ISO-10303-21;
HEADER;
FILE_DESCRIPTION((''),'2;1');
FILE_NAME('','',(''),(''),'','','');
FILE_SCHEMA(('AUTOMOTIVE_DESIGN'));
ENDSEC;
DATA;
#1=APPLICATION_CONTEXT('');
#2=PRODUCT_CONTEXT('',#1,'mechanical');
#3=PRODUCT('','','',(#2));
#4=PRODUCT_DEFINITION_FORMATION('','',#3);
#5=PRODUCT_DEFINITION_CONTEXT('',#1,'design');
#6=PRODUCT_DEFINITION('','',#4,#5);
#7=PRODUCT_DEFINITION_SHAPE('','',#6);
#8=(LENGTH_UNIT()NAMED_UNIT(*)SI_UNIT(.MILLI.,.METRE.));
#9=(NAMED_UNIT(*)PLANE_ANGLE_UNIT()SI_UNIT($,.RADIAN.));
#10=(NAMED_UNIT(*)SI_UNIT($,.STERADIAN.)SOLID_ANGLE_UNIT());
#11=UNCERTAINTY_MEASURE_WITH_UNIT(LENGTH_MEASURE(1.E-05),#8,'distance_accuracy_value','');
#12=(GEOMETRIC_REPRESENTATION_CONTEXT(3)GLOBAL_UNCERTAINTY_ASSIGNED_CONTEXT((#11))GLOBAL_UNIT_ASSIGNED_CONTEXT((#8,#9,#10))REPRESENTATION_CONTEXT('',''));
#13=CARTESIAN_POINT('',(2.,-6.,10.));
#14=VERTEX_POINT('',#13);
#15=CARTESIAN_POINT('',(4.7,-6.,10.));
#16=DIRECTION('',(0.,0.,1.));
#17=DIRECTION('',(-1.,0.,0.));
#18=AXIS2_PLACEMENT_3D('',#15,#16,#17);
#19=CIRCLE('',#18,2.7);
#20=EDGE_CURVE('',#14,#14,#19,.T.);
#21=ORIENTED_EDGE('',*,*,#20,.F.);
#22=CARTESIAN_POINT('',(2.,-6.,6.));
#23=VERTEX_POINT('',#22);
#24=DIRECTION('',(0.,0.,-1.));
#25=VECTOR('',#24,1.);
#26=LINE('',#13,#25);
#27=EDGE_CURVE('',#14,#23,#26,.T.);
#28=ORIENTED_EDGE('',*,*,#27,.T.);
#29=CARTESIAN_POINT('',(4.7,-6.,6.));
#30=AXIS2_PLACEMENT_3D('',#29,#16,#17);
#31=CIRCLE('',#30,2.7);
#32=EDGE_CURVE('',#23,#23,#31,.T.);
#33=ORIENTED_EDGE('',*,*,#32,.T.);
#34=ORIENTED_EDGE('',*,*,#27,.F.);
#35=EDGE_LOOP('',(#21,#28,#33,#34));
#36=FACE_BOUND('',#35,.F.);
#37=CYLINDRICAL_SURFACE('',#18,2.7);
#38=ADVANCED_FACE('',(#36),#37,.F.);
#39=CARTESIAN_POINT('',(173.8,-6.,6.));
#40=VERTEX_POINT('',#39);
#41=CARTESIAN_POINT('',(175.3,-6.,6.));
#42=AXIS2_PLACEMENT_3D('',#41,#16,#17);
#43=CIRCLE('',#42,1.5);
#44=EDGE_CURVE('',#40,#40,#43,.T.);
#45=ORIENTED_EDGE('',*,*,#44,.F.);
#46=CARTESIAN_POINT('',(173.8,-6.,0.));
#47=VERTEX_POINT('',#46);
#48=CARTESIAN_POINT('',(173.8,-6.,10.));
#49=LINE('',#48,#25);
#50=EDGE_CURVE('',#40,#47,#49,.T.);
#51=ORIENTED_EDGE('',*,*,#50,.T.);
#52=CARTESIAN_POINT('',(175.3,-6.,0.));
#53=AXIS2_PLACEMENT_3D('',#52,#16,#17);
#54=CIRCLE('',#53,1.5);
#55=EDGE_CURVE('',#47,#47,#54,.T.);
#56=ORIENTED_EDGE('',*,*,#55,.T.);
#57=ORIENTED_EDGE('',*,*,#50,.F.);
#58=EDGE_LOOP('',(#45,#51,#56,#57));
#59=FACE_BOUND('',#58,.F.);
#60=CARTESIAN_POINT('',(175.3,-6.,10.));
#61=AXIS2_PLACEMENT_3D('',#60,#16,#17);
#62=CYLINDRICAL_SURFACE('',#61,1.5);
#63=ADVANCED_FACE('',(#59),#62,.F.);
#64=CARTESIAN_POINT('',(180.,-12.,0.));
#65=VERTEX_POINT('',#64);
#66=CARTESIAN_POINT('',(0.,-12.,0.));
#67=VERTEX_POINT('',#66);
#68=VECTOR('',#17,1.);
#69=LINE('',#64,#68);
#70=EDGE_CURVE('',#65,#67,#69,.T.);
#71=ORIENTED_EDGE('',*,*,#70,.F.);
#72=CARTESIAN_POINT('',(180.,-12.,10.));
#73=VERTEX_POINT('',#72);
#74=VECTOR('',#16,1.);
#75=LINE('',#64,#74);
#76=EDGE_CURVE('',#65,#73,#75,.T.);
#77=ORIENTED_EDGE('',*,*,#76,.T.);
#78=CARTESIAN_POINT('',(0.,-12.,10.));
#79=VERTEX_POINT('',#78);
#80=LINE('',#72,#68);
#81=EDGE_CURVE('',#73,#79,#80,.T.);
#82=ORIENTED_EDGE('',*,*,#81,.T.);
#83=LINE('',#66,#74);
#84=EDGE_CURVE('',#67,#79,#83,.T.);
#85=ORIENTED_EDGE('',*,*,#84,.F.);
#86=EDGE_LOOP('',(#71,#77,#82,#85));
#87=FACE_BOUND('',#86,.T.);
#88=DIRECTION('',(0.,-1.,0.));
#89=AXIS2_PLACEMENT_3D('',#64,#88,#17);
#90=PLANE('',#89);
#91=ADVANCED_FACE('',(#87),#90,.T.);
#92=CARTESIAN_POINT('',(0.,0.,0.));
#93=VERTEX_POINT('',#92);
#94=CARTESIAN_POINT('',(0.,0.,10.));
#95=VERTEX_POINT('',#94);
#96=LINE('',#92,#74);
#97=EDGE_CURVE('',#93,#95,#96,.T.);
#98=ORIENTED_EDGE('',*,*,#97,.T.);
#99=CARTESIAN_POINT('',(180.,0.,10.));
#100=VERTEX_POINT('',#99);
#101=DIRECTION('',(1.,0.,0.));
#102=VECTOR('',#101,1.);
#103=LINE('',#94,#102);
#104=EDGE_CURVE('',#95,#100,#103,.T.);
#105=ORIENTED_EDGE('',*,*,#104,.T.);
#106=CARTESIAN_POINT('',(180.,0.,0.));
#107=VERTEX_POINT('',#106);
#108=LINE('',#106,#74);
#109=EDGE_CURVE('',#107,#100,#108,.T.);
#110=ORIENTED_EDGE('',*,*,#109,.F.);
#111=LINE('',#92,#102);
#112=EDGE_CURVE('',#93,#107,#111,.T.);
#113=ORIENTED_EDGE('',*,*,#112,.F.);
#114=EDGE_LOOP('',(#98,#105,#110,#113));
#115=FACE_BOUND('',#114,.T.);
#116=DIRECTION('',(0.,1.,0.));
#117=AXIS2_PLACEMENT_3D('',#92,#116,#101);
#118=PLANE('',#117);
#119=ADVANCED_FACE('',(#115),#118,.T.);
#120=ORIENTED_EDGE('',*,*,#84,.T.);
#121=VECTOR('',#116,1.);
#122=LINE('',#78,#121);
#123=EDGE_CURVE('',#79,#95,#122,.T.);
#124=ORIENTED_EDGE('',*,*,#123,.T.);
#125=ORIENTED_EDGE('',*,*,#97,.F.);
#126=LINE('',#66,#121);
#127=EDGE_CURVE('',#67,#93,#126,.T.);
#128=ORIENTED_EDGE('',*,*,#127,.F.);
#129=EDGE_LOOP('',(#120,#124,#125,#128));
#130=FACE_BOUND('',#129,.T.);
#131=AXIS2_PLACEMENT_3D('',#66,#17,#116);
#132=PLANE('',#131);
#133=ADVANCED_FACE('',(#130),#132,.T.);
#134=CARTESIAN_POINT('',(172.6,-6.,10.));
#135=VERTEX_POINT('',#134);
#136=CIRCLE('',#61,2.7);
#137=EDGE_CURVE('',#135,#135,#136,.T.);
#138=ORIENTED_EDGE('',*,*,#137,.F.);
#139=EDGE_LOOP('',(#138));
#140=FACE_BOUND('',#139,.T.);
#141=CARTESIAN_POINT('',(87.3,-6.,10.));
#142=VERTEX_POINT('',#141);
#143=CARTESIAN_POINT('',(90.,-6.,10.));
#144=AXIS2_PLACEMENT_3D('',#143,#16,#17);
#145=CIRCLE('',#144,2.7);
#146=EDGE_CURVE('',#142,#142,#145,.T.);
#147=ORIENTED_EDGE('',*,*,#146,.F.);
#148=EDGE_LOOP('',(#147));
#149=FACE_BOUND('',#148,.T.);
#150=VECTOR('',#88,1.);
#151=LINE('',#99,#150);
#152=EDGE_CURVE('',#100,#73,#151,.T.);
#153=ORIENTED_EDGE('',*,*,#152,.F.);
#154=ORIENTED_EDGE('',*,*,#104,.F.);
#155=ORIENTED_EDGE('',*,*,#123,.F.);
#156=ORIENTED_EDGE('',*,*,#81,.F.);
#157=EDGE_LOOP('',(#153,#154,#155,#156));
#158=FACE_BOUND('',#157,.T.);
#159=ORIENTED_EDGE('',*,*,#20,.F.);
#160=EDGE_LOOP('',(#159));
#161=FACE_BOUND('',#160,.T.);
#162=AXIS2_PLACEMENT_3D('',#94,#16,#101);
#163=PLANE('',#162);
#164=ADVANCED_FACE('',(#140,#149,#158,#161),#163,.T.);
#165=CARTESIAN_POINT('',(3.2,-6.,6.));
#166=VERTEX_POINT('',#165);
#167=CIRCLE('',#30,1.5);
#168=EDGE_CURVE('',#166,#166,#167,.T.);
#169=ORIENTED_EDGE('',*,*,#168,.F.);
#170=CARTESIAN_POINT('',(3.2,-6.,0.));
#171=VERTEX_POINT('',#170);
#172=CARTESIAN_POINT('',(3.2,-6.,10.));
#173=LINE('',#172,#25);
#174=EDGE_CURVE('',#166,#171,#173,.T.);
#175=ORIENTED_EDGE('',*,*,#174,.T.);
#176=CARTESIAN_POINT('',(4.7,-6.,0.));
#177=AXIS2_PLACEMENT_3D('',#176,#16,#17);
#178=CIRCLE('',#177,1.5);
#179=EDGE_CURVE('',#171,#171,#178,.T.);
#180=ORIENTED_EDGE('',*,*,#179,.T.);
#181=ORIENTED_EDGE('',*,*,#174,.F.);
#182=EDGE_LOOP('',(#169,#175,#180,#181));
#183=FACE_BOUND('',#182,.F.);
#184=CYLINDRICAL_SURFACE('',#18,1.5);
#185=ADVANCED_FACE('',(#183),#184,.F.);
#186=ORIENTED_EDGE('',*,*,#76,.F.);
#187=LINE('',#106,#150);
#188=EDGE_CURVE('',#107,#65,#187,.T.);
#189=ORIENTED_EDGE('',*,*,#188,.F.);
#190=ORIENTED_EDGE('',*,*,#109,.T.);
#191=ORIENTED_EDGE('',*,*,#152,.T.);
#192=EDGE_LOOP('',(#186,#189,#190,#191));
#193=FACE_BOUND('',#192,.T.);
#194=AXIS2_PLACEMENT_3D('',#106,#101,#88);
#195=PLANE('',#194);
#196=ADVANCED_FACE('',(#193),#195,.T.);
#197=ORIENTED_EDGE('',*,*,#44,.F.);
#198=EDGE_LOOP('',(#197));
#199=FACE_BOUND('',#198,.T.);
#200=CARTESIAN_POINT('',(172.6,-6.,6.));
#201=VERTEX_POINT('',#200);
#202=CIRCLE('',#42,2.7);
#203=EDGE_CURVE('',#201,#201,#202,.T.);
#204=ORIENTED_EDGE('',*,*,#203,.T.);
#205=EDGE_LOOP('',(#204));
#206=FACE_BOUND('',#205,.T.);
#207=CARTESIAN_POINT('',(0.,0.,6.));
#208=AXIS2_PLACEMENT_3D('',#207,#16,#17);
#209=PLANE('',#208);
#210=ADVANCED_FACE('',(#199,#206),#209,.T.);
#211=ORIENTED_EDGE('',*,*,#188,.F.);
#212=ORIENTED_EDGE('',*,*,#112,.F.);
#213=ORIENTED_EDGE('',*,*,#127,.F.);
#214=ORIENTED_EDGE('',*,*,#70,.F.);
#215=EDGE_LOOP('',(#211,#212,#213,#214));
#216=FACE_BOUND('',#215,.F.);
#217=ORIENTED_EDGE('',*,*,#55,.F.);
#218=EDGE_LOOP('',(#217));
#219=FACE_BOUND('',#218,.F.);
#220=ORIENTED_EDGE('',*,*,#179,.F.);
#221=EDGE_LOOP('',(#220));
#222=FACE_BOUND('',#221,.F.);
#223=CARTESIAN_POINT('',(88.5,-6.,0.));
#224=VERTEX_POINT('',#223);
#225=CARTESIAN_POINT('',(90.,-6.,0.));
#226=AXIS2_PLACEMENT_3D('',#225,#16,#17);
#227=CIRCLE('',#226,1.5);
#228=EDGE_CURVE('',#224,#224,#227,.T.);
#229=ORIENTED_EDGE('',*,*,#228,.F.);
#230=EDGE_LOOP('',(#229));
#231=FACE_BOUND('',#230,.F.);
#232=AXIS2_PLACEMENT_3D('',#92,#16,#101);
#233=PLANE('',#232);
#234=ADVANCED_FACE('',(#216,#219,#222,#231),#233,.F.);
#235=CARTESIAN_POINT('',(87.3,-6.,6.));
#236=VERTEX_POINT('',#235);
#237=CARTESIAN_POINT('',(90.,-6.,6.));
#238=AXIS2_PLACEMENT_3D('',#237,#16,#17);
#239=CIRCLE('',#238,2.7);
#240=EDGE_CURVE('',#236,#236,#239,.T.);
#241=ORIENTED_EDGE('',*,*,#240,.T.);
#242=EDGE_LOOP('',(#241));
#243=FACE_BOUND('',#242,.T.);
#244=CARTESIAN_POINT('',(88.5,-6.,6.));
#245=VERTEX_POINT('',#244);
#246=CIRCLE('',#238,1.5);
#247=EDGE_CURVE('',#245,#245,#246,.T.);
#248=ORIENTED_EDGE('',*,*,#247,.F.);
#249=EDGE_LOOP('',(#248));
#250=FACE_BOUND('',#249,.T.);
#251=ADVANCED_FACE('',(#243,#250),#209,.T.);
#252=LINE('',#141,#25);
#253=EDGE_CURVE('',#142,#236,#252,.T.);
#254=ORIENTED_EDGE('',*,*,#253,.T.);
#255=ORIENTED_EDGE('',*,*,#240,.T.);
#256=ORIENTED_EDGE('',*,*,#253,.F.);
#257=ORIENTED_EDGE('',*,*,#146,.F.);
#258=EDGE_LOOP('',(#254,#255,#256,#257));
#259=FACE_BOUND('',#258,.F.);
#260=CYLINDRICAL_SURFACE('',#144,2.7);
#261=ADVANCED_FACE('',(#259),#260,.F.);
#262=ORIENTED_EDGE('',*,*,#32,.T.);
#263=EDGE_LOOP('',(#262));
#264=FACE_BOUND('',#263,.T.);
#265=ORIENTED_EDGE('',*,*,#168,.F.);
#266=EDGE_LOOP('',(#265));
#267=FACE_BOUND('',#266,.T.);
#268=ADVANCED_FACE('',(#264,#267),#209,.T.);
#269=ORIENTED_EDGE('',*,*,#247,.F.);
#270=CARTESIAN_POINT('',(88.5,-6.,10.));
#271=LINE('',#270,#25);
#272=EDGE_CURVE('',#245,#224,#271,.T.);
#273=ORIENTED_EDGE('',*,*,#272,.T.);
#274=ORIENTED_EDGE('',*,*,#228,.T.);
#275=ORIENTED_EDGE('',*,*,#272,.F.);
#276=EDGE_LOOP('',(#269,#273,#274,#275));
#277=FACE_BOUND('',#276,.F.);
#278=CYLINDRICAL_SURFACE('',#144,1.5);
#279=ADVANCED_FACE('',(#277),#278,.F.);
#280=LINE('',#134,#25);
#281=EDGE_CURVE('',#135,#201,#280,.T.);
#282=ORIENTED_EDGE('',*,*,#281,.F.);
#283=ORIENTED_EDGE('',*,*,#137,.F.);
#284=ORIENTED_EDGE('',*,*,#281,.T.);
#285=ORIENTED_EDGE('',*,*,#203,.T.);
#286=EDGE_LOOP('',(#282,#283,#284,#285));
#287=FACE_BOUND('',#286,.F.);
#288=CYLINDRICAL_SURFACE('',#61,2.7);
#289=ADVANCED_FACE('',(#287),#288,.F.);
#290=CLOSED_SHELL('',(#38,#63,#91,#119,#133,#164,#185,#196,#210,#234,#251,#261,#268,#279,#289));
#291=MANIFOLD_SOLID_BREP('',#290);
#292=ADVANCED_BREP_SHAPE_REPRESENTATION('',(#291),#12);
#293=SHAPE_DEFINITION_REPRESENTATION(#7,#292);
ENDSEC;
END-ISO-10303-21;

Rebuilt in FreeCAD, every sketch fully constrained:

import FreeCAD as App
import Part
import Sketcher
from FreeCAD import Vector

doc = App.newDocument("Part")
body = doc.addObject("PartDesign::Body", "Body")

# Sketch on XY plane
sketch1 = body.newObject("Sketcher::SketchObject", "Sketch")
sketch1.AttachmentSupport = (doc.getObject("XY_Plane"), [""])
sketch1.MapMode = "FlatFace"
sketch1.addGeometry(Part.LineSegment(Vector(180, 0, 0), Vector(0, 0, 0)), False)
sketch1.addGeometry(Part.LineSegment(Vector(0, 0, 0), Vector(0, -12, 0)), False)
sketch1.addGeometry(Part.LineSegment(Vector(0, -12, 0), Vector(180, -12, 0)), False)
sketch1.addGeometry(Part.LineSegment(Vector(180, -12, 0), Vector(180, 0, 0)), False)
sketch1.addConstraint(Sketcher.Constraint("Coincident", 0, 2, 1, 1))
sketch1.addConstraint(Sketcher.Constraint("Coincident", 1, 2, 2, 1))
sketch1.addConstraint(Sketcher.Constraint("Coincident", 2, 2, 3, 1))
sketch1.addConstraint(Sketcher.Constraint("Coincident", 3, 2, 0, 1))
sketch1.addConstraint(Sketcher.Constraint("Horizontal", 0))
sketch1.addConstraint(Sketcher.Constraint("Vertical", 1))
sketch1.addConstraint(Sketcher.Constraint("Horizontal", 2))
sketch1.addConstraint(Sketcher.Constraint("Vertical", 3))
sketch1.addConstraint(Sketcher.Constraint("Coincident", 0, 2, -1, 1))
sketch1.addConstraint(Sketcher.Constraint("DistanceX", 0, 2, 0, 1, 180.0))
sketch1.addConstraint(Sketcher.Constraint("DistanceY", 1, 2, 1, 1, 12.0))
pad1 = body.newObject("PartDesign::Pad", "Pad")
pad1.Profile = sketch1
pad1.Length = 10

# Sketch on XY plane
sketch2 = body.newObject("Sketcher::SketchObject", "Sketch001")
sketch2.AttachmentSupport = (doc.getObject("XY_Plane"), [""])
sketch2.MapMode = "FlatFace"
sketch2.AttachmentOffset = App.Placement(Vector(0, 0, 10), App.Rotation())
sketch2.addGeometry(Part.Circle(Vector(175.3, -6, 0), Vector(0, 0, 1), 1.5), False)
sketch2.addConstraint(Sketcher.Constraint("Diameter", 0, 3.0))
sketch2.addConstraint(Sketcher.Constraint("DistanceY", 0, 3, -1, 1, 6.0))
sketch2.addConstraint(Sketcher.Constraint("DistanceX", -1, 1, 0, 3, 175.3))
pocket1 = body.newObject("PartDesign::Pocket", "Pocket")
pocket1.Profile = sketch2
pocket1.Length = 100

# Sketch on XY plane
sketch3 = body.newObject("Sketcher::SketchObject", "Sketch002")
sketch3.AttachmentSupport = (doc.getObject("XY_Plane"), [""])
sketch3.MapMode = "FlatFace"
sketch3.AttachmentOffset = App.Placement(Vector(0, 0, 10), App.Rotation())
sketch3.addGeometry(Part.Circle(Vector(175.3, -6, 0), Vector(0, 0, 1), 2.7), False)
sketch3.addGeometry(Part.Circle(Vector(175.3, -6, 0), Vector(0, 0, 1), 1.5), False)
sketch3.addConstraint(Sketcher.Constraint("Coincident", 1, 3, 0, 3))
sketch3.addConstraint(Sketcher.Constraint("Diameter", 1, 3.0))
sketch3.addConstraint(Sketcher.Constraint("DistanceY", 0, 3, -1, 1, 6.0))
sketch3.addConstraint(Sketcher.Constraint("Diameter", 0, 5.4))
sketch3.addConstraint(Sketcher.Constraint("DistanceX", -1, 1, 0, 3, 175.3))
pocket2 = body.newObject("PartDesign::Pocket", "Pocket001")
pocket2.Profile = sketch3
pocket2.Length = 4

# Sketch on XY plane
sketch4 = body.newObject("Sketcher::SketchObject", "Sketch003")
sketch4.AttachmentSupport = (doc.getObject("XY_Plane"), [""])
sketch4.MapMode = "FlatFace"
sketch4.AttachmentOffset = App.Placement(Vector(0, 0, 10), App.Rotation())
sketch4.addGeometry(Part.Circle(Vector(4.7, -6, 0), Vector(0, 0, 1), 1.5), False)
sketch4.addConstraint(Sketcher.Constraint("Diameter", 0, 3.0))
sketch4.addConstraint(Sketcher.Constraint("DistanceY", 0, 3, -1, 1, 6.0))
sketch4.addConstraint(Sketcher.Constraint("DistanceX", -1, 1, 0, 3, 4.7))
pocket3 = body.newObject("PartDesign::Pocket", "Pocket002")
pocket3.Profile = sketch4
pocket3.Length = 100

# Sketch on XY plane
sketch5 = body.newObject("Sketcher::SketchObject", "Sketch004")
sketch5.AttachmentSupport = (doc.getObject("XY_Plane"), [""])
sketch5.MapMode = "FlatFace"
sketch5.AttachmentOffset = App.Placement(Vector(0, 0, 10), App.Rotation())
sketch5.addGeometry(Part.Circle(Vector(4.7, -6, 0), Vector(0, 0, 1), 2.7), False)
sketch5.addGeometry(Part.Circle(Vector(4.7, -6, 0), Vector(0, 0, 1), 1.5), False)
sketch5.addConstraint(Sketcher.Constraint("Coincident", 1, 3, 0, 3))
sketch5.addConstraint(Sketcher.Constraint("Diameter", 1, 3.0))
sketch5.addConstraint(Sketcher.Constraint("DistanceY", 0, 3, -1, 1, 6.0))
sketch5.addConstraint(Sketcher.Constraint("Diameter", 0, 5.4))
sketch5.addConstraint(Sketcher.Constraint("DistanceX", -1, 1, 0, 3, 4.7))
pocket4 = body.newObject("PartDesign::Pocket", "Pocket003")
pocket4.Profile = sketch5
pocket4.Length = 4

# Sketch on XY plane
sketch6 = body.newObject("Sketcher::SketchObject", "Sketch005")
sketch6.AttachmentSupport = (doc.getObject("XY_Plane"), [""])
sketch6.MapMode = "FlatFace"
sketch6.AttachmentOffset = App.Placement(Vector(0, 0, 10), App.Rotation())
sketch6.addGeometry(Part.Circle(Vector(90, -6, 0), Vector(0, 0, 1), 1.5), False)
sketch6.addConstraint(Sketcher.Constraint("Diameter", 0, 3.0))
sketch6.addConstraint(Sketcher.Constraint("DistanceX", -1, 1, 0, 3, 90.0))
sketch6.addConstraint(Sketcher.Constraint("DistanceY", 0, 3, -1, 1, 6.0))
pocket5 = body.newObject("PartDesign::Pocket", "Pocket004")
pocket5.Profile = sketch6
pocket5.Length = 100

# Sketch on XY plane
sketch7 = body.newObject("Sketcher::SketchObject", "Sketch006")
sketch7.AttachmentSupport = (doc.getObject("XY_Plane"), [""])
sketch7.MapMode = "FlatFace"
sketch7.AttachmentOffset = App.Placement(Vector(0, 0, 10), App.Rotation())
sketch7.addGeometry(Part.Circle(Vector(90, -6, 0), Vector(0, 0, 1), 2.7), False)
sketch7.addGeometry(Part.Circle(Vector(90, -6, 0), Vector(0, 0, 1), 1.5), False)
sketch7.addConstraint(Sketcher.Constraint("Coincident", 1, 3, 0, 3))
sketch7.addConstraint(Sketcher.Constraint("Diameter", 1, 3.0))
sketch7.addConstraint(Sketcher.Constraint("DistanceX", -1, 1, 0, 3, 90.0))
sketch7.addConstraint(Sketcher.Constraint("DistanceY", 0, 3, -1, 1, 6.0))
sketch7.addConstraint(Sketcher.Constraint("Diameter", 0, 5.4))
pocket6 = body.newObject("PartDesign::Pocket", "Pocket005")
pocket6.Profile = sketch7
pocket6.Length = 4

doc.recompute()
